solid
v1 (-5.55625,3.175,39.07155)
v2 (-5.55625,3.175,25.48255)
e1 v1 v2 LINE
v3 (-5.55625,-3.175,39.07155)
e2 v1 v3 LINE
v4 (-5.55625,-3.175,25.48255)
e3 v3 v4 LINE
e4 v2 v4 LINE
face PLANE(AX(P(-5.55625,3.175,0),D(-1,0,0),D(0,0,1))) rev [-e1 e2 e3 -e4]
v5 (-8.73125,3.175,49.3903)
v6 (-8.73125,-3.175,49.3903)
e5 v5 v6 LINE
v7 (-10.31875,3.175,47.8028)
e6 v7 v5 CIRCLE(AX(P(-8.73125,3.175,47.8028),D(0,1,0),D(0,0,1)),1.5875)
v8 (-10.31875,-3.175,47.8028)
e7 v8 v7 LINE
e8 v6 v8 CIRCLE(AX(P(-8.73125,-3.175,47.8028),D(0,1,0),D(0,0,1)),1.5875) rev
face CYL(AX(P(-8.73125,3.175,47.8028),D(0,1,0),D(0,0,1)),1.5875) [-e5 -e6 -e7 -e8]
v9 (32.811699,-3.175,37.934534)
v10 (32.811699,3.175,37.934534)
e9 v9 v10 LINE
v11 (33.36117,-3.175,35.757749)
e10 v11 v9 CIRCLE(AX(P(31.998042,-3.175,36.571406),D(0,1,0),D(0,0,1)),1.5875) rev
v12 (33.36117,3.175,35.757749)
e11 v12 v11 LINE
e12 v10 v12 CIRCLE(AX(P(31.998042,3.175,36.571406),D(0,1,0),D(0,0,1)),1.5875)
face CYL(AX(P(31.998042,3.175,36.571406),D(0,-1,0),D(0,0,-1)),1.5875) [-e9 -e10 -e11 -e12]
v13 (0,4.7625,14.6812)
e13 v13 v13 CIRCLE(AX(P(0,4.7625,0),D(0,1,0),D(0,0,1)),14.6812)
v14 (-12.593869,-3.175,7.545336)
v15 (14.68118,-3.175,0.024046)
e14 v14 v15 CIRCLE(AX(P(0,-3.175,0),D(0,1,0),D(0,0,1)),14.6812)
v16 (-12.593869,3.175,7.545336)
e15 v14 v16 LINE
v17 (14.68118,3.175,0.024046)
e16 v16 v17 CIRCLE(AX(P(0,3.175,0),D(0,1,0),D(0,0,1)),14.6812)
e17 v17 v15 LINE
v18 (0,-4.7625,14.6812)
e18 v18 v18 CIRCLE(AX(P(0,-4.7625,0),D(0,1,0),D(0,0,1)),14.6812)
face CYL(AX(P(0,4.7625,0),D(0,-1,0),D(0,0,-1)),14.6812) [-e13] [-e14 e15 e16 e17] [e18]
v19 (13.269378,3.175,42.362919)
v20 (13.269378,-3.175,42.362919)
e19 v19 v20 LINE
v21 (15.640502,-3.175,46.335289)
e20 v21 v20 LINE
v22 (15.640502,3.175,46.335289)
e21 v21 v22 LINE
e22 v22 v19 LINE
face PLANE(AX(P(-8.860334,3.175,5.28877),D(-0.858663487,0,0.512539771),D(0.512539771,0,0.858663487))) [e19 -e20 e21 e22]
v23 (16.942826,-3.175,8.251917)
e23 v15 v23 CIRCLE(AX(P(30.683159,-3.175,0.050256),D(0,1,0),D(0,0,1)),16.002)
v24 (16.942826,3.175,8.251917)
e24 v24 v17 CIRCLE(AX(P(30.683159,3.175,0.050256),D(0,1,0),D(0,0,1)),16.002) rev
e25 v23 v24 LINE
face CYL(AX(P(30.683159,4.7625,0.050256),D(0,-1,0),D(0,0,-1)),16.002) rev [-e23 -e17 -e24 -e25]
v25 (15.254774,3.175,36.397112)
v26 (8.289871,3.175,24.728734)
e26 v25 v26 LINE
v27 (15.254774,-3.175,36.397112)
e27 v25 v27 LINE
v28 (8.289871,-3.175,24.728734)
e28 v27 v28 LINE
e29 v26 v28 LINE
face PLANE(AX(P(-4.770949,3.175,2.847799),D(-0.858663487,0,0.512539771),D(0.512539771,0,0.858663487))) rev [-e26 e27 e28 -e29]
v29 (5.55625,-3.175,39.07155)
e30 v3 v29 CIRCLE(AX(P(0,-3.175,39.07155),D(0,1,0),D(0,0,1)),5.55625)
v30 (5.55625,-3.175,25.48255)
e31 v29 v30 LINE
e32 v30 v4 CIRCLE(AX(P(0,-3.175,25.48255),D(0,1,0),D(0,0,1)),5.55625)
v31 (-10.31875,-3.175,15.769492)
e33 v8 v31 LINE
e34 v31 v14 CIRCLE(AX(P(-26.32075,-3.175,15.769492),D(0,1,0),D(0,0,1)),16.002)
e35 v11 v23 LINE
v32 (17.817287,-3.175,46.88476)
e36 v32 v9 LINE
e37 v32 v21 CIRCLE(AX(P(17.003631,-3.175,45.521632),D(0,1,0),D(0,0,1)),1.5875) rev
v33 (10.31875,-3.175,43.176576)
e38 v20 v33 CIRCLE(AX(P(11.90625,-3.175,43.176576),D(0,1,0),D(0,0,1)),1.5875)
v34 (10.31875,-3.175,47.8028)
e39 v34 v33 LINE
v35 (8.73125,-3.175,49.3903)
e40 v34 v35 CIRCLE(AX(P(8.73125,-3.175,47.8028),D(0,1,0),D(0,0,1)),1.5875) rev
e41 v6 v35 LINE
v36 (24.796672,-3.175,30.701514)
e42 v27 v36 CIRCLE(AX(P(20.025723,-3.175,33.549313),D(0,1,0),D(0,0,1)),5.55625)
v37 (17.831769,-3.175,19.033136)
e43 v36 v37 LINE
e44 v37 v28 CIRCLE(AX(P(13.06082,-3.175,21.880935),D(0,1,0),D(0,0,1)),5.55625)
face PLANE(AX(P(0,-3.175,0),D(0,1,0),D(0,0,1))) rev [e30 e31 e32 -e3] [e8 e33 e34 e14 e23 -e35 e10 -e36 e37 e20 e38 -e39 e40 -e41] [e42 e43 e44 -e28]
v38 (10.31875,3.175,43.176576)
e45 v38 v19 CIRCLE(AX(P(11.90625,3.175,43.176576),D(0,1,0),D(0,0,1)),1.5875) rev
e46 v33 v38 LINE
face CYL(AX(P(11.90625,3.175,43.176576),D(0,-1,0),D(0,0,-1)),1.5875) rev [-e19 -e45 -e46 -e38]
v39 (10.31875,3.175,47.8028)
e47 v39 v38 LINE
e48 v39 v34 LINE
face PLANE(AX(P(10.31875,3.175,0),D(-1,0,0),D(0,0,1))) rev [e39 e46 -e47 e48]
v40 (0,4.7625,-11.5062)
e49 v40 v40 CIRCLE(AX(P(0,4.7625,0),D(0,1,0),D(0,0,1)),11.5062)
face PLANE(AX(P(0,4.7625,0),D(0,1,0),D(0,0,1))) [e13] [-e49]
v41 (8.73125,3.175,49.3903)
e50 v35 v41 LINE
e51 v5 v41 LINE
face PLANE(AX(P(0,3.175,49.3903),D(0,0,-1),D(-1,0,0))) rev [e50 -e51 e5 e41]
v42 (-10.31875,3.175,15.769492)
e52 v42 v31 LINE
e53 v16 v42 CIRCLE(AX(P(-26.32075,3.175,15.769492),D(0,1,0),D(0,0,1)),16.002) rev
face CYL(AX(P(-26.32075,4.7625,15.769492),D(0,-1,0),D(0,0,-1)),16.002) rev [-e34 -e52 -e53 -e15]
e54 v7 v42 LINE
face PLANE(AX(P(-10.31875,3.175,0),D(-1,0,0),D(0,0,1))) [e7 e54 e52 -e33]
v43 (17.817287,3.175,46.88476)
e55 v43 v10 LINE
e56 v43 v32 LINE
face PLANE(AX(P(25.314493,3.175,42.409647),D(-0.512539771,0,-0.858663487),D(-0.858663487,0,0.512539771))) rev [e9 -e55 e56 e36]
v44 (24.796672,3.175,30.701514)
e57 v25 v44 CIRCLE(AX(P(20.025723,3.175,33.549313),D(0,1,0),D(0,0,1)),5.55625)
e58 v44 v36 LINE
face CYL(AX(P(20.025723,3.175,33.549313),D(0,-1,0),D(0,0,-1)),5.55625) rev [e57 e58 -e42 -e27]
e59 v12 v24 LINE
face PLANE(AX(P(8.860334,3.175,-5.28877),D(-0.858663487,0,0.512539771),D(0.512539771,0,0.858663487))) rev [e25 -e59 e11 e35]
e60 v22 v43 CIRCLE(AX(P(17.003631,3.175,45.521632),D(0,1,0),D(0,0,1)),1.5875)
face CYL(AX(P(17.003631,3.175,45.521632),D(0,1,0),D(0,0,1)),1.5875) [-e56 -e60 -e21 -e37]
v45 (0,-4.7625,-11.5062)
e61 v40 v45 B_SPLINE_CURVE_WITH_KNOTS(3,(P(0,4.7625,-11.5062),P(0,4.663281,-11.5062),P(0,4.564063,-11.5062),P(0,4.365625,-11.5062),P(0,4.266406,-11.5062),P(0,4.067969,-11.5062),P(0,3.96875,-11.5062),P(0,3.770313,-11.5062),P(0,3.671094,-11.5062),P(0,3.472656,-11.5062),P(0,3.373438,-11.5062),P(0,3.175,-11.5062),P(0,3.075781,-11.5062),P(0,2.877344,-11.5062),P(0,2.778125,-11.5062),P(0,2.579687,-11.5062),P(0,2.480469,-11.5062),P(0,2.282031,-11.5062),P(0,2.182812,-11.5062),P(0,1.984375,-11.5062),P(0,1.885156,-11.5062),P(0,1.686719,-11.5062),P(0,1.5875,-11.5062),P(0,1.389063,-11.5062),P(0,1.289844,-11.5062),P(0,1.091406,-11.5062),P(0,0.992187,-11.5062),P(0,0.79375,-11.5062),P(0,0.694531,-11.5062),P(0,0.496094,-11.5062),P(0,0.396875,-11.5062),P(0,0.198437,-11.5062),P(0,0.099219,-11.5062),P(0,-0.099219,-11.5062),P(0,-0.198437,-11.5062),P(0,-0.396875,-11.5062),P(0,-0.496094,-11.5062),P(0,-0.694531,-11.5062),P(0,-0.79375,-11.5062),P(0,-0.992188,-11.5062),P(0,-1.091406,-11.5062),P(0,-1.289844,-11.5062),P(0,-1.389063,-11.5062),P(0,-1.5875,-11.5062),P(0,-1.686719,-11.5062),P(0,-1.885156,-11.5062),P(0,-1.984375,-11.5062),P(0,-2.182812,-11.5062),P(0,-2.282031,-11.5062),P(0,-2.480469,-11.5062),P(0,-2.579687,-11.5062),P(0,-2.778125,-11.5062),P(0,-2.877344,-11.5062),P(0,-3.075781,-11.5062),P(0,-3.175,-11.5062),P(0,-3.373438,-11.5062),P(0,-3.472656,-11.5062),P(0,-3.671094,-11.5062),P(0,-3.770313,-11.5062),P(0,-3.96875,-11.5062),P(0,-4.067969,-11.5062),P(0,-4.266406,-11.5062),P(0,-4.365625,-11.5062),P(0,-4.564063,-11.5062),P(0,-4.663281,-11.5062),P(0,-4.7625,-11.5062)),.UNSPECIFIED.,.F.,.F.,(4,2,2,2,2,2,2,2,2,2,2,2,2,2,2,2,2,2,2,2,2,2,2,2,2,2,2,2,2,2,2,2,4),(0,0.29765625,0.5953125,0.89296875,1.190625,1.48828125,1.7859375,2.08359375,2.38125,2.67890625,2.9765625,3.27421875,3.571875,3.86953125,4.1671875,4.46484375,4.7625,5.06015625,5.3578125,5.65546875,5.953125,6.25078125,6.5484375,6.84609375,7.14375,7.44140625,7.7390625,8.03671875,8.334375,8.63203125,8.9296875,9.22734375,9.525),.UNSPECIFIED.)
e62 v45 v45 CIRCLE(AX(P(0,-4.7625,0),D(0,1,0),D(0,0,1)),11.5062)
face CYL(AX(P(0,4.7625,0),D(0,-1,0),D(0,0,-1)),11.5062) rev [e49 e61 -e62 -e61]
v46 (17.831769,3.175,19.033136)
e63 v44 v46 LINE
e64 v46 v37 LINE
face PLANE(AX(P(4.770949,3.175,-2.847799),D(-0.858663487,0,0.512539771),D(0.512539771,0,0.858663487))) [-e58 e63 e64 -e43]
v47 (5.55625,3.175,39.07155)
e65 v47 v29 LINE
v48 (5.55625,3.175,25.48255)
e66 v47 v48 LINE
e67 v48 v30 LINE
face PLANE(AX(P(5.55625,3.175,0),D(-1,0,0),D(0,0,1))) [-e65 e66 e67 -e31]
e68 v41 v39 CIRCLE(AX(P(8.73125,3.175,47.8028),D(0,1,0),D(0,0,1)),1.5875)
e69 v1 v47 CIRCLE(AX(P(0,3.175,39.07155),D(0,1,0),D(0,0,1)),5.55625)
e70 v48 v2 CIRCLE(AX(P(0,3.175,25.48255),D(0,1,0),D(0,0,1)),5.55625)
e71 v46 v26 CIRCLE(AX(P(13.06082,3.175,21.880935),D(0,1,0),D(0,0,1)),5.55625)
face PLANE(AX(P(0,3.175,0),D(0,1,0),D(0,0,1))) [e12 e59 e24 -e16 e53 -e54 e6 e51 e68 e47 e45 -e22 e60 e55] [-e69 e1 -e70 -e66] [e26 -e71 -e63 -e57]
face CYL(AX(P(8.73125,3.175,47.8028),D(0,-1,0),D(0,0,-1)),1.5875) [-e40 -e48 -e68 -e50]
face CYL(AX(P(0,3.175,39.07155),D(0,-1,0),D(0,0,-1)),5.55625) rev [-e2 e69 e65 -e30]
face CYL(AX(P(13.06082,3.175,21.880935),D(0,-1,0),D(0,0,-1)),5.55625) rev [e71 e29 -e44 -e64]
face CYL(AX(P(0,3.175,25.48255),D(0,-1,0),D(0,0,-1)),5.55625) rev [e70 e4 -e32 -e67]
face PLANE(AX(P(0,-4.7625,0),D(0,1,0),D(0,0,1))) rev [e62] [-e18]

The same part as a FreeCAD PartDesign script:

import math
import FreeCAD as App
import Part
import Sketcher
from FreeCAD import Vector
Q = App.Units.Quantity


def edges_at(feature, points):
    """Names of the edges that pass closest to the given points."""
    edges = feature.Shape.Edges
    near = lambda p: min(range(len(edges)), key=lambda i: edges[i].distToShape(Part.Vertex(*p))[0])
    return sorted({f"Edge{near(p) + 1}" for p in points})

doc = App.newDocument("Part")
body = doc.addObject("PartDesign::Body", "Body")

sketch1 = body.newObject("Sketcher::SketchObject", "Sketch")
sketch1.AttachmentSupport = (doc.getObject("XZ_Plane"), [""])
sketch1.MapMode = "FlatFace"
sketch1.addGeometry([
    Part.Circle(Vector(0, 0, 0), Vector(0, 0, 1), 15),
    Part.Circle(Vector(0, 0, 0), Vector(0, 0, 1), 12),
], False)
sketch1.addConstraint([
    Sketcher.Constraint("Coincident", 0, 3, -1, 1),
    Sketcher.Constraint("Coincident", 1, 3, -1, 1),
    Sketcher.Constraint("Diameter", 0, Q("1.156 in")),
    Sketcher.Constraint("Diameter", 1, Q("0.906 in")),
])
pad1 = body.newObject("PartDesign::Pad", "Pad")
pad1.Profile = sketch1
pad1.Length = Q("0.375 in")
pad1.Midplane = True

sketch2 = body.newObject("Sketcher::SketchObject", "Sketch001")
sketch2.AttachmentSupport = (doc.getObject("XZ_Plane"), [""])
sketch2.MapMode = "FlatFace"
sketch2.addGeometry([
    Part.LineSegment(Vector(-10, 10, 0), Vector(-10, 49, 0)),
    Part.LineSegment(Vector(-10, 49, 0), Vector(10, 49, 0)),
    Part.LineSegment(Vector(10, 49, 0), Vector(10, 37, 0)),
    Part.LineSegment(Vector(10, 37, 0), Vector(16, 48, 0)),
    Part.LineSegment(Vector(16, 48, 0), Vector(34, 37, 0)),
    Part.LineSegment(Vector(34, 37, 0), Vector(14, 4, 0)),
    Part.ArcOfCircle(Part.Circle(Vector(0, 0, 0), Vector(0, 0, 1), 15), math.radians(15), math.radians(135)),
    Part.LineSegment(Vector(6, 25, 0), Vector(6, 39, 0)),
    Part.ArcOfCircle(Part.Circle(Vector(0, 39, 0), Vector(0, 0, 1), 6), math.radians(0), math.radians(180)),
    Part.LineSegment(Vector(-6, 39, 0), Vector(-6, 25, 0)),
    Part.ArcOfCircle(Part.Circle(Vector(0, 25, 0), Vector(0, 0, 1), 6), math.radians(180), math.radians(360)),
    Part.LineSegment(Vector(18, 19, 0), Vector(25, 31, 0)),
    Part.ArcOfCircle(Part.Circle(Vector(20, 34, 0), Vector(0, 0, 1), 6), math.radians(-31), math.radians(149)),
    Part.LineSegment(Vector(15, 36, 0), Vector(8, 25, 0)),
    Part.ArcOfCircle(Part.Circle(Vector(13, 22, 0), Vector(0, 0, 1), 6), math.radians(149), math.radians(329)),
], False)
sketch2.addConstraint([
    Sketcher.Constraint("Coincident", 0, 2, 1, 1),
    Sketcher.Constraint("Coincident", 1, 2, 2, 1),
    Sketcher.Constraint("Coincident", 2, 2, 3, 1),
    Sketcher.Constraint("Coincident", 3, 2, 4, 1),
    Sketcher.Constraint("Coincident", 4, 2, 5, 1),
    Sketcher.Constraint("Coincident", 5, 2, 6, 1),
    Sketcher.Constraint("Coincident", 6, 2, 0, 1),
    Sketcher.Constraint("Tangent", 7, 2, 8, 1),
    Sketcher.Constraint("Tangent", 8, 2, 9, 1),
    Sketcher.Constraint("Tangent", 9, 2, 10, 1),
    Sketcher.Constraint("Tangent", 10, 2, 7, 1),
    Sketcher.Constraint("Tangent", 11, 2, 12, 1),
    Sketcher.Constraint("Tangent", 12, 2, 13, 1),
    Sketcher.Constraint("Tangent", 13, 2, 14, 1),
    Sketcher.Constraint("Tangent", 14, 2, 11, 1),
    Sketcher.Constraint("Vertical", 0),
    Sketcher.Constraint("Horizontal", 1),
    Sketcher.Constraint("Vertical", 2),
    Sketcher.Constraint("Vertical", 7),
    Sketcher.Constraint("Vertical", 9),
    Sketcher.Constraint("Coincident", 6, 3, -1, 1),
    Sketcher.Constraint("Equal", 10, 12),
    Sketcher.Constraint("Equal", 12, 14),
    Sketcher.Constraint("PointOnObject", 8, 3, -2),
    Sketcher.Constraint("Perpendicular", 3, 4),
    Sketcher.Constraint("Perpendicular", 4, 5),
    Sketcher.Constraint("Parallel", 5, 11),
    Sketcher.Constraint("Radius", 6, Q("0.578 in")),
    Sketcher.Constraint("Radius", 8, Q("0.21875 in")),
    Sketcher.Constraint("DistanceX", 1, 1, 1, 2, Q("0.8125 in")),
    Sketcher.Constraint("DistanceY", 7, 1, 7, 2, Q("0.535 in")),
    Sketcher.Constraint("Distance", 4, Q("0.8125 in")),
    Sketcher.Constraint("Distance", 11, Q("0.535 in")),
    Sketcher.Constraint("DistanceX", 0, 2, -1, 1, Q("0.40625 in")),
    Sketcher.Constraint("DistanceY", 8, 3, 0, 2, Q("0.40625 in")),
    Sketcher.Constraint("DistanceY", 2, 2, 2, 1, 11.970601),
    Sketcher.Constraint("DistanceY", -1, 1, 0, 2, Q("1.9445 in")),
    Sketcher.Constraint("Distance", 3, 11.970601),
    Sketcher.Constraint("DistanceY", 5, 2, 10, 3, 21.8041),
    Sketcher.Constraint("DistanceX", -1, 1, 14, 3, 13.06082),
    Sketcher.Constraint("DistanceY", 14, 3, 3, 2, 25.817482),
])
pad2 = body.newObject("PartDesign::Pad", "Pad001")
pad2.Profile = sketch2
pad2.Length = Q("0.25 in")
pad2.Midplane = True
doc.recompute()

fillet = body.newObject("PartDesign::Fillet", "Fillet")
fillet.Base = (pad2, edges_at(pad2, [(14.213, 0, 3.678), (-10.319, 0, 10.443)]))
fillet.Radius = Q("0.63 in")
doc.recompute()

fillet2 = body.newObject("PartDesign::Fillet", "Fillet001")
fillet2.Base = (fillet, edges_at(fillet, [
    (-10.319, 0, 49.39),
    (10.319, 0, 49.39),
    (10.319, 0, 37.42),
    (16.454, 0, 47.698),
    (34.175, 0, 37.121),
]))
fillet2.Radius = Q("0.0625 in")

doc.recompute()
